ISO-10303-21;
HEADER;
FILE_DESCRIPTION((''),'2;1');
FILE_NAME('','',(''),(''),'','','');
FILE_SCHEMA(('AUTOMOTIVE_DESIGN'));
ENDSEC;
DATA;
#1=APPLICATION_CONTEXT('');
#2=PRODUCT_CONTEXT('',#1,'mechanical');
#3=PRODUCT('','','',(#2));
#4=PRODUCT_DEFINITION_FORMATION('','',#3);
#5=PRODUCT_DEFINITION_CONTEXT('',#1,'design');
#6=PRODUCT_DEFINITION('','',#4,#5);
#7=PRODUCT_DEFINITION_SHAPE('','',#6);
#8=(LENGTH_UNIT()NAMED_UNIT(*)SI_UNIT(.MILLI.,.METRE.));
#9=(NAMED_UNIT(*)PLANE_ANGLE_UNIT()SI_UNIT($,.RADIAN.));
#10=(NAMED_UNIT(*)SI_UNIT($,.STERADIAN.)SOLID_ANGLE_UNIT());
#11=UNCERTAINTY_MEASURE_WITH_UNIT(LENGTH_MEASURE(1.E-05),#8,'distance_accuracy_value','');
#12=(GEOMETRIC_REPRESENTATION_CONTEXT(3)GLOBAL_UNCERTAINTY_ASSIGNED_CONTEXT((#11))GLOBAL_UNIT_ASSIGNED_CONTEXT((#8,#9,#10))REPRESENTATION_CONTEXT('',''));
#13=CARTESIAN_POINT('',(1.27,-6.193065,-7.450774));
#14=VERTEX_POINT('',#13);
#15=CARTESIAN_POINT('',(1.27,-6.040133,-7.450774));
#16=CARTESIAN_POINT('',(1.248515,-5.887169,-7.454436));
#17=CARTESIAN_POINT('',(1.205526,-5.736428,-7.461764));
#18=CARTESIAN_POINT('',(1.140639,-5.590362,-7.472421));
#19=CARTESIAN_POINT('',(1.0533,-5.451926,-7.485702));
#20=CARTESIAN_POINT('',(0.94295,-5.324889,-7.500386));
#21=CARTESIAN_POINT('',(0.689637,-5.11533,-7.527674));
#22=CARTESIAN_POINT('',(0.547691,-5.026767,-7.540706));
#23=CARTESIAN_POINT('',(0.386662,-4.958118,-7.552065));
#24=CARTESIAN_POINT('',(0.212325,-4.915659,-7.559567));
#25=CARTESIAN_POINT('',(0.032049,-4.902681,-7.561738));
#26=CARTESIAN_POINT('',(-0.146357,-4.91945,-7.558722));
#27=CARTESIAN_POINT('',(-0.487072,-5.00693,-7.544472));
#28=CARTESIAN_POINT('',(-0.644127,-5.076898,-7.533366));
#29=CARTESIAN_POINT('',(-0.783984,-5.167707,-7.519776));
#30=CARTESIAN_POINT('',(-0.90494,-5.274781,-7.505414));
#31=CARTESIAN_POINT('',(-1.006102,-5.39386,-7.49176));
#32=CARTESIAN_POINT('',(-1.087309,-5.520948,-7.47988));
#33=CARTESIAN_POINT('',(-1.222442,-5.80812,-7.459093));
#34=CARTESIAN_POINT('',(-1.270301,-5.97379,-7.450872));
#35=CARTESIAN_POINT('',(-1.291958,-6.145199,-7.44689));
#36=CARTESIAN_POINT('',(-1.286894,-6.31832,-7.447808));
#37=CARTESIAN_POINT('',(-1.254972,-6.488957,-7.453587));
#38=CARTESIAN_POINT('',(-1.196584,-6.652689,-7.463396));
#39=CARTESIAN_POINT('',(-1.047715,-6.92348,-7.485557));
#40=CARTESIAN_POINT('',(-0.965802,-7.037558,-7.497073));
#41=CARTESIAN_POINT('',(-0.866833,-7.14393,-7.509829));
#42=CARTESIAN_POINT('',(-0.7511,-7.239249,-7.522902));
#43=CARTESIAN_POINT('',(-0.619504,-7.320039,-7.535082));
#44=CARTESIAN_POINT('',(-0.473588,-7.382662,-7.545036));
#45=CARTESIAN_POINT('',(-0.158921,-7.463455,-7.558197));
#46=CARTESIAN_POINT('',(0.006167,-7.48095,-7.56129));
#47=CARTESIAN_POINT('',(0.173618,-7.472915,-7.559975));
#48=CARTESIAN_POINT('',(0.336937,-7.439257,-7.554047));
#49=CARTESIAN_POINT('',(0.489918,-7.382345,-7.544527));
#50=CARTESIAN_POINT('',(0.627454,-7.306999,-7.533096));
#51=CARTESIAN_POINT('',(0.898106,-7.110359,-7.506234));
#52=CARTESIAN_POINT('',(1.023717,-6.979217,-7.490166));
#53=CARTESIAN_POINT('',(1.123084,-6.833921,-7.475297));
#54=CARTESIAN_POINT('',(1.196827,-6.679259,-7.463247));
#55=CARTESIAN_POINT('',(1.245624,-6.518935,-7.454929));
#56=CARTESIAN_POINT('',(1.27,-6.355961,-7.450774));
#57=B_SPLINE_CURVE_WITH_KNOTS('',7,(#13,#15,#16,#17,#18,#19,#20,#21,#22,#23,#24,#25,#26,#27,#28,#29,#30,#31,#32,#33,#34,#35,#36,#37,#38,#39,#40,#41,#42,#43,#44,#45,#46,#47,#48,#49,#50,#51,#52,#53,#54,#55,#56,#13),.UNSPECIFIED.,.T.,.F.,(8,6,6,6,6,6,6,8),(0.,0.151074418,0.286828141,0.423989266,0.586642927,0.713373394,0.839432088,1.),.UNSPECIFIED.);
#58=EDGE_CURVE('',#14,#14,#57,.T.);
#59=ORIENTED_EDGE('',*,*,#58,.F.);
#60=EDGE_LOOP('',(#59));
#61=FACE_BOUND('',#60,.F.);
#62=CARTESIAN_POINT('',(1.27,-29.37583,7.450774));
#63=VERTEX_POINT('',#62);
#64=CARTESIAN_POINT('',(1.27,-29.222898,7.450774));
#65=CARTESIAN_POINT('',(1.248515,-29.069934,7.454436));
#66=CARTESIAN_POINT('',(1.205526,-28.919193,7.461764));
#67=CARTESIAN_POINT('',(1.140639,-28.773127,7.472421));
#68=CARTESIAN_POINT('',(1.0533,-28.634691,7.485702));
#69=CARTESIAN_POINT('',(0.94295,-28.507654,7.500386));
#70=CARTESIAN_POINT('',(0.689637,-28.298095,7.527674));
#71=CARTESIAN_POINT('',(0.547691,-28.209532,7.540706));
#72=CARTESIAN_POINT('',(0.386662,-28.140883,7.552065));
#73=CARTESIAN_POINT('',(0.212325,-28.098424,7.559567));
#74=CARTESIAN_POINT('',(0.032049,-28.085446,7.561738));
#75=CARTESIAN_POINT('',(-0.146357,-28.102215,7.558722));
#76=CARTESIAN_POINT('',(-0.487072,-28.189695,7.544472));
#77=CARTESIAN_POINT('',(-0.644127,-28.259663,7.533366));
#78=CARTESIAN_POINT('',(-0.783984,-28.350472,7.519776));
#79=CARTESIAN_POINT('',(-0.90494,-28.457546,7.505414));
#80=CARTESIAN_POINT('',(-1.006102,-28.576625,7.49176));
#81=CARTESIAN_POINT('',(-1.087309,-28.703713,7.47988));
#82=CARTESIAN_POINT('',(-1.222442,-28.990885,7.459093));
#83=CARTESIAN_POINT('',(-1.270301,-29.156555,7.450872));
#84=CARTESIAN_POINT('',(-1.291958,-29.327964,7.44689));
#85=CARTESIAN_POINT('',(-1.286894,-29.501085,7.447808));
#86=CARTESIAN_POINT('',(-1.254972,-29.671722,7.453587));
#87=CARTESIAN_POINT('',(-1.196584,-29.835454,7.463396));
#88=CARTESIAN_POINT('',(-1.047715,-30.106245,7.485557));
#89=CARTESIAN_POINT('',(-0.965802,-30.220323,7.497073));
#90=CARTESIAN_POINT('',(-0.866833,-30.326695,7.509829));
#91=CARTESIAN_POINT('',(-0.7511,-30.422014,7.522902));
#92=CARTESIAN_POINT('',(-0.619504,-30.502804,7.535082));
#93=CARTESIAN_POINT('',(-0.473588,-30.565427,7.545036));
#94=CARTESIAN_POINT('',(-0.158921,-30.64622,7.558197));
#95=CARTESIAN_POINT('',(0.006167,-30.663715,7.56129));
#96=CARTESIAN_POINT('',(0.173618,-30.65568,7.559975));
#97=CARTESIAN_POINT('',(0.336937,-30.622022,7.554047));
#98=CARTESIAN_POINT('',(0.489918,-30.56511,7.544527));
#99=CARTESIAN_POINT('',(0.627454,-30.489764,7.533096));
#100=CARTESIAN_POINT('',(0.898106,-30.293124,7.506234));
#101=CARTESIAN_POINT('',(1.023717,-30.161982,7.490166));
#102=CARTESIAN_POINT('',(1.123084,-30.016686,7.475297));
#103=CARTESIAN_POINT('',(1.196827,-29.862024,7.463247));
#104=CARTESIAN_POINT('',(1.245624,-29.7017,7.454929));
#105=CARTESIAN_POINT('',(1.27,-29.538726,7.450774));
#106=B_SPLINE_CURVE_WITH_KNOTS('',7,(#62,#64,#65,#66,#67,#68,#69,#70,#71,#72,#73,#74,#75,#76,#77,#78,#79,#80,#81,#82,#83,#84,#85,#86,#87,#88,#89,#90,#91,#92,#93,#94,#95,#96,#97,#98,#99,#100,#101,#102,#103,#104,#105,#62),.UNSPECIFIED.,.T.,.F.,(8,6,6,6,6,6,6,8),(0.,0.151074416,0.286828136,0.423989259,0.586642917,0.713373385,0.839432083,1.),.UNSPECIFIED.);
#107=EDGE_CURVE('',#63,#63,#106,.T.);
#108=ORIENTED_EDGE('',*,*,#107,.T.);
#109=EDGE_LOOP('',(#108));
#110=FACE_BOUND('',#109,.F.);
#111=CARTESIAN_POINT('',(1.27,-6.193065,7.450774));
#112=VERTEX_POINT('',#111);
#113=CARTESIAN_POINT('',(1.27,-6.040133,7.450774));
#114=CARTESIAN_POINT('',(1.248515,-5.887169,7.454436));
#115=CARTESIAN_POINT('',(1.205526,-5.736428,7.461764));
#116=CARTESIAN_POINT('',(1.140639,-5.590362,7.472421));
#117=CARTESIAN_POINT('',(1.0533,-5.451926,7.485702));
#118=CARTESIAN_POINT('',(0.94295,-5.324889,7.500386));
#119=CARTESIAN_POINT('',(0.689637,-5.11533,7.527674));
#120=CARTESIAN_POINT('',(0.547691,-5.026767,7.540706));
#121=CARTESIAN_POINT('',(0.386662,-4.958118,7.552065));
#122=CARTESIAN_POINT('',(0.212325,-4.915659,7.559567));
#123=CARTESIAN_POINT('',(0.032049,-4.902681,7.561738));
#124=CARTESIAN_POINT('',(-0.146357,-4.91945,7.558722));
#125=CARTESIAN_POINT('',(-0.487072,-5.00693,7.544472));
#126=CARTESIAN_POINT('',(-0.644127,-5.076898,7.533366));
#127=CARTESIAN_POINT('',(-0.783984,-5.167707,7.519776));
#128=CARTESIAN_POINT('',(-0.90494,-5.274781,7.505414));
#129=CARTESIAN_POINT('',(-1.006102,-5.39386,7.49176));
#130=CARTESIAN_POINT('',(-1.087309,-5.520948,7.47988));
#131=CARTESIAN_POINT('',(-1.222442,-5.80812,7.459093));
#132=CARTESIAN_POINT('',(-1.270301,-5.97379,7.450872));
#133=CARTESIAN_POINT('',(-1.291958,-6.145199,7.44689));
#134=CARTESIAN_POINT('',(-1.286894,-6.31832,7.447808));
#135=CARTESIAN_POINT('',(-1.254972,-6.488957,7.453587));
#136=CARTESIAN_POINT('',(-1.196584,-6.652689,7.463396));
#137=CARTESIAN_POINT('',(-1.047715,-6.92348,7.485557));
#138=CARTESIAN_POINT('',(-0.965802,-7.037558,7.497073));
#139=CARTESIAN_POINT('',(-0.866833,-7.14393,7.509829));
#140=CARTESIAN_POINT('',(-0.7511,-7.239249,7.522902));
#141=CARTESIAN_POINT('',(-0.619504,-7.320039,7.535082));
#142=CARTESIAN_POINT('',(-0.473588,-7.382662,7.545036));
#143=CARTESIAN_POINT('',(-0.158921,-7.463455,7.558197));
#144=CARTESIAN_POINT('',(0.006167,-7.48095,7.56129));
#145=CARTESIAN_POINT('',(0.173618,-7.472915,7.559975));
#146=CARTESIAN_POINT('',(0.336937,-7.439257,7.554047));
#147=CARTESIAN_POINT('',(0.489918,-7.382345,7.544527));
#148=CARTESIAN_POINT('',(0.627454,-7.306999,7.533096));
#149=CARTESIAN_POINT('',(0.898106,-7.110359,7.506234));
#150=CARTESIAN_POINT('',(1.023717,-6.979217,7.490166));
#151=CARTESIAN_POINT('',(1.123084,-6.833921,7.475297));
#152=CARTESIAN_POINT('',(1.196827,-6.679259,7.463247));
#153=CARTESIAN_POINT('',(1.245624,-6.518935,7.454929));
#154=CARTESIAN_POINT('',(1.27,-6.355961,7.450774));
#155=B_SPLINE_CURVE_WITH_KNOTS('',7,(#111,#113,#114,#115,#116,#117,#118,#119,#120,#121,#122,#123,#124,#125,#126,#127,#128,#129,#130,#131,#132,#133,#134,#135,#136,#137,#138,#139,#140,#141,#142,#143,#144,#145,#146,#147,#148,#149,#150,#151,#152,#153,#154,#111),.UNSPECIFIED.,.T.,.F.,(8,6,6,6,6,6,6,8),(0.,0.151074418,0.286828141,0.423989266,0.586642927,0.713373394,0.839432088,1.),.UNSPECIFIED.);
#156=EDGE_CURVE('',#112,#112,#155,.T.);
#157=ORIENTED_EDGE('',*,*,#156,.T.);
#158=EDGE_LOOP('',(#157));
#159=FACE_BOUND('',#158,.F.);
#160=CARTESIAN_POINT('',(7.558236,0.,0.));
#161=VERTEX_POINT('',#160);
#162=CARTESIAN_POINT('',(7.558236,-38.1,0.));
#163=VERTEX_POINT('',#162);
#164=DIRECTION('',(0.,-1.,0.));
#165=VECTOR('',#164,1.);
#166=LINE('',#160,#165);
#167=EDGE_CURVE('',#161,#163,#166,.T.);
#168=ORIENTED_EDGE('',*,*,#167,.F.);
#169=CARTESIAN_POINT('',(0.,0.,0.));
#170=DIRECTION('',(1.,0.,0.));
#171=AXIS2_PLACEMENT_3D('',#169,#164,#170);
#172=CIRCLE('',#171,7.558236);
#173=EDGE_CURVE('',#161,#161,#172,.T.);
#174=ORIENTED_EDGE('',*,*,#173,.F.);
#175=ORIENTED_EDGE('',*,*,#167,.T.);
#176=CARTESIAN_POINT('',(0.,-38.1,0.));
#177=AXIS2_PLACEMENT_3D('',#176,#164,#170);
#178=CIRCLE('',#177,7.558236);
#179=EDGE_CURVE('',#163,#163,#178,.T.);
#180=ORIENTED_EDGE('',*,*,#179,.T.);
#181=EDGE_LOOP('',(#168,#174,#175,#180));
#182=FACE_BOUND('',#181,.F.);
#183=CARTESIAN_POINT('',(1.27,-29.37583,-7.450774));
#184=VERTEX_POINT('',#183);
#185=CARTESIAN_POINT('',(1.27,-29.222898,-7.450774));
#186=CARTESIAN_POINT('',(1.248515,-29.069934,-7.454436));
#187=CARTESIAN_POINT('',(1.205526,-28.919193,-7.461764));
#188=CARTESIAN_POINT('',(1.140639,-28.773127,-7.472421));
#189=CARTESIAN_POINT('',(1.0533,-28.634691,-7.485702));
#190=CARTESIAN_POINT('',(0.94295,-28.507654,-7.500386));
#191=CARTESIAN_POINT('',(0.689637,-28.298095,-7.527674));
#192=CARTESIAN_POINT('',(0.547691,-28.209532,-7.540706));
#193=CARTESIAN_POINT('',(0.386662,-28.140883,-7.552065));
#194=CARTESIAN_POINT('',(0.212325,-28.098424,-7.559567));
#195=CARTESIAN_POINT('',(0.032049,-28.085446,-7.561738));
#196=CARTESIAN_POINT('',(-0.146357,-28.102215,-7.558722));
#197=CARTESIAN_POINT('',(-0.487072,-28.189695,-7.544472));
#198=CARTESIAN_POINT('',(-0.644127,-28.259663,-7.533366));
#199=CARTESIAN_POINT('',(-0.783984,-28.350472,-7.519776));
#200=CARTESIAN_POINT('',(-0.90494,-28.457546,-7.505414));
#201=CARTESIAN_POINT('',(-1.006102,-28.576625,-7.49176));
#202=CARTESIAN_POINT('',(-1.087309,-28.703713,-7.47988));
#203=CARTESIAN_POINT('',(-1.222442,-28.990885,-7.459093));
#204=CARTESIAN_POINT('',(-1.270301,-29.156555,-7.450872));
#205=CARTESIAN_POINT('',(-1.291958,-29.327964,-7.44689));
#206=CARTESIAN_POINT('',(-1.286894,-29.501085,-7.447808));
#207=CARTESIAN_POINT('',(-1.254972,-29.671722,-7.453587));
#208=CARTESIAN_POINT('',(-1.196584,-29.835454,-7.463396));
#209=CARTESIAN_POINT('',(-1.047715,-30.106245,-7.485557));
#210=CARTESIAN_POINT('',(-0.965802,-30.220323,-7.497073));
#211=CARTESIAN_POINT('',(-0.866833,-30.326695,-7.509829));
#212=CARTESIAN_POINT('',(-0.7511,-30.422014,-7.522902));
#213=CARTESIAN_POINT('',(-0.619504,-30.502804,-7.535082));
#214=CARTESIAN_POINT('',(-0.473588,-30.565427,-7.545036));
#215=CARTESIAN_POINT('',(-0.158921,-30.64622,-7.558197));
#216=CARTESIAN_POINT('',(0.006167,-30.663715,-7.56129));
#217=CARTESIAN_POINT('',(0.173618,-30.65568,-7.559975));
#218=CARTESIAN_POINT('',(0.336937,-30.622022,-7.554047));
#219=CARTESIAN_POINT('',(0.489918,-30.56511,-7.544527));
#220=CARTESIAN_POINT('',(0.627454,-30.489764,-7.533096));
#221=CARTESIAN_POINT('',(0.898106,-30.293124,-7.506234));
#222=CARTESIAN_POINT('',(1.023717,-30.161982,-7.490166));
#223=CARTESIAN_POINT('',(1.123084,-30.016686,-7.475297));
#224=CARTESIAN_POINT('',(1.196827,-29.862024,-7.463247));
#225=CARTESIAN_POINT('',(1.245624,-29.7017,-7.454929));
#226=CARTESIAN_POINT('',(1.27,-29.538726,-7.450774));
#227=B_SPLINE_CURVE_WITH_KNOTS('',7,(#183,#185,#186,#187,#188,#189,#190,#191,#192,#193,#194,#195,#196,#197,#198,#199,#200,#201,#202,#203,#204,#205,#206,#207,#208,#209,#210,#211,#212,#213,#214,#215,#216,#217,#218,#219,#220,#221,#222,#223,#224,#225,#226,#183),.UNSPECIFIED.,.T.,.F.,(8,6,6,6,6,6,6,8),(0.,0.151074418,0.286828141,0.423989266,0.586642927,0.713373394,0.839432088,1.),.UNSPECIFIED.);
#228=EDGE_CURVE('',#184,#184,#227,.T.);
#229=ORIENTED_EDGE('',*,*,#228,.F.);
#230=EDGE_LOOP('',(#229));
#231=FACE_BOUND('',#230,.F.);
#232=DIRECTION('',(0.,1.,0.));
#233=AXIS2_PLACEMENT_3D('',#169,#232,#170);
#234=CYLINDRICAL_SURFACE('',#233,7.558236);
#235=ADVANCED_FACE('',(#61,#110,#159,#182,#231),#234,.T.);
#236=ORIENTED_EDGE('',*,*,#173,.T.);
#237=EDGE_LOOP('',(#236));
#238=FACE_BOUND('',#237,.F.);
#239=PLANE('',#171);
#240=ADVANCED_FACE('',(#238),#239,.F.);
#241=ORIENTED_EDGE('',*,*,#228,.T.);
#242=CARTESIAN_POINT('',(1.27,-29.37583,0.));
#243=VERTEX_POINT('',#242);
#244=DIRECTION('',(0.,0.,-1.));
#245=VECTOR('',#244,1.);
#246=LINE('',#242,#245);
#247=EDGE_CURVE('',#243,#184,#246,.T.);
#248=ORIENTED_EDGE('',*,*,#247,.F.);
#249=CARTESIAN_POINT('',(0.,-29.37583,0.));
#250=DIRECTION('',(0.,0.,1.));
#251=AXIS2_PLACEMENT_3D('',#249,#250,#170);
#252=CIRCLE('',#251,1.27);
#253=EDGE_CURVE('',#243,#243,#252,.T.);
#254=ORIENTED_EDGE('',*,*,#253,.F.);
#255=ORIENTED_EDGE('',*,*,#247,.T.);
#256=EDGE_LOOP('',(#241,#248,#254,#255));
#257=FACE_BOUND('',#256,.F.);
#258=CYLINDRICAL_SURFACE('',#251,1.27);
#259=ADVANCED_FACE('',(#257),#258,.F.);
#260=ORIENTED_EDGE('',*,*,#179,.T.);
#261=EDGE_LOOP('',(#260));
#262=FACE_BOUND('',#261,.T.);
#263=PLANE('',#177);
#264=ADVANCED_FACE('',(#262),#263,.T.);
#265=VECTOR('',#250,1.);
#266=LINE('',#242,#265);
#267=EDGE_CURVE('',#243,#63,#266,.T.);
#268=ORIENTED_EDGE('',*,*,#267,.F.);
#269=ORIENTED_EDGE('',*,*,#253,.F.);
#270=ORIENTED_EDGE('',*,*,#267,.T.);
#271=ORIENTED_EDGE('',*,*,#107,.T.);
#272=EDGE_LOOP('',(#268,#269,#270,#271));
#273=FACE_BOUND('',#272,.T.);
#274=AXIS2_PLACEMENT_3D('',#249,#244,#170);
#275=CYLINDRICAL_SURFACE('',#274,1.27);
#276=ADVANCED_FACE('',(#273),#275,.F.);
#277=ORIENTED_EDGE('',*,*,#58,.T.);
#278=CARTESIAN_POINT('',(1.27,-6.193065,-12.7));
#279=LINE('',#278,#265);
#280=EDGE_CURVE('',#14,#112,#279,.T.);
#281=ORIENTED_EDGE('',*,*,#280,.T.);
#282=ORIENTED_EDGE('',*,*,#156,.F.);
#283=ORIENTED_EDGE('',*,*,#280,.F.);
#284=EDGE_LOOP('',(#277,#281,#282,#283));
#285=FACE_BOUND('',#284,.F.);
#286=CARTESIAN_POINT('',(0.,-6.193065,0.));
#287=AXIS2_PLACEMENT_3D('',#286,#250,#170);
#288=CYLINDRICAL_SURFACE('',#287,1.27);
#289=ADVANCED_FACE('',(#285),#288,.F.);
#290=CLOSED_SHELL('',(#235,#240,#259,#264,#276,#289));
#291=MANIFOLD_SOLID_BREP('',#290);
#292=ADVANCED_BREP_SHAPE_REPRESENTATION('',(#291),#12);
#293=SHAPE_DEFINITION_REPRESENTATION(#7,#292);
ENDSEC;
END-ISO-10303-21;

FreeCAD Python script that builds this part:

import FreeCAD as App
import Part
import Sketcher
from FreeCAD import Vector
Q = App.Units.Quantity

doc = App.newDocument("Part")
body = doc.addObject("PartDesign::Body", "Body")

sketch1 = doc.addObject("Sketcher::SketchObject", "Sketch")
body.addObject(sketch1)
sketch1.AttachmentSupport = (doc.XZ_Plane, [""])
sketch1.MapMode = "FlatFace"
sketch1.addGeometry(Part.Circle(Vector(0, 0, 0), Vector(0, 0, 1), 8), False)
sketch1.addConstraint([
    Sketcher.Constraint("Coincident", 0, 3, -1, 1),
    Sketcher.Constraint("Diameter", 0, 15.116472),
])
pad1 = doc.addObject("PartDesign::Pad", "Pad")
body.addObject(pad1)
pad1.Profile = sketch1
pad1.Length = Q("1.5 in")

sketch2 = doc.addObject("Sketcher::SketchObject", "Sketch001")
body.addObject(sketch2)
sketch2.AttachmentSupport = (doc.XY_Plane, [""])
sketch2.MapMode = "FlatFace"
sketch2.addGeometry([
    Part.Circle(Vector(0, -29.4, 0), Vector(0, 0, 1), 1.3),
    Part.Circle(Vector(0, -6.2, 0), Vector(0, 0, 1), 1.3),
], False)
sketch2.addConstraint([
    Sketcher.Constraint("Equal", 0, 1),
    Sketcher.Constraint("PointOnObject", 0, 3, -2),
    Sketcher.Constraint("PointOnObject", 1, 3, -2),
    Sketcher.Constraint("Diameter", 0, Q("0.1 in")),
    Sketcher.Constraint("DistanceY", 0, 3, -1, 1, 29.37583),
    Sketcher.Constraint("DistanceY", 1, 3, -1, 1, 6.193065),
])
pocket1 = doc.addObject("PartDesign::Pocket", "Pocket")
body.addObject(pocket1)
pocket1.Profile = sketch2
pocket1.Length = Q("1 in")
pocket1.Midplane = True

doc.recompute()
